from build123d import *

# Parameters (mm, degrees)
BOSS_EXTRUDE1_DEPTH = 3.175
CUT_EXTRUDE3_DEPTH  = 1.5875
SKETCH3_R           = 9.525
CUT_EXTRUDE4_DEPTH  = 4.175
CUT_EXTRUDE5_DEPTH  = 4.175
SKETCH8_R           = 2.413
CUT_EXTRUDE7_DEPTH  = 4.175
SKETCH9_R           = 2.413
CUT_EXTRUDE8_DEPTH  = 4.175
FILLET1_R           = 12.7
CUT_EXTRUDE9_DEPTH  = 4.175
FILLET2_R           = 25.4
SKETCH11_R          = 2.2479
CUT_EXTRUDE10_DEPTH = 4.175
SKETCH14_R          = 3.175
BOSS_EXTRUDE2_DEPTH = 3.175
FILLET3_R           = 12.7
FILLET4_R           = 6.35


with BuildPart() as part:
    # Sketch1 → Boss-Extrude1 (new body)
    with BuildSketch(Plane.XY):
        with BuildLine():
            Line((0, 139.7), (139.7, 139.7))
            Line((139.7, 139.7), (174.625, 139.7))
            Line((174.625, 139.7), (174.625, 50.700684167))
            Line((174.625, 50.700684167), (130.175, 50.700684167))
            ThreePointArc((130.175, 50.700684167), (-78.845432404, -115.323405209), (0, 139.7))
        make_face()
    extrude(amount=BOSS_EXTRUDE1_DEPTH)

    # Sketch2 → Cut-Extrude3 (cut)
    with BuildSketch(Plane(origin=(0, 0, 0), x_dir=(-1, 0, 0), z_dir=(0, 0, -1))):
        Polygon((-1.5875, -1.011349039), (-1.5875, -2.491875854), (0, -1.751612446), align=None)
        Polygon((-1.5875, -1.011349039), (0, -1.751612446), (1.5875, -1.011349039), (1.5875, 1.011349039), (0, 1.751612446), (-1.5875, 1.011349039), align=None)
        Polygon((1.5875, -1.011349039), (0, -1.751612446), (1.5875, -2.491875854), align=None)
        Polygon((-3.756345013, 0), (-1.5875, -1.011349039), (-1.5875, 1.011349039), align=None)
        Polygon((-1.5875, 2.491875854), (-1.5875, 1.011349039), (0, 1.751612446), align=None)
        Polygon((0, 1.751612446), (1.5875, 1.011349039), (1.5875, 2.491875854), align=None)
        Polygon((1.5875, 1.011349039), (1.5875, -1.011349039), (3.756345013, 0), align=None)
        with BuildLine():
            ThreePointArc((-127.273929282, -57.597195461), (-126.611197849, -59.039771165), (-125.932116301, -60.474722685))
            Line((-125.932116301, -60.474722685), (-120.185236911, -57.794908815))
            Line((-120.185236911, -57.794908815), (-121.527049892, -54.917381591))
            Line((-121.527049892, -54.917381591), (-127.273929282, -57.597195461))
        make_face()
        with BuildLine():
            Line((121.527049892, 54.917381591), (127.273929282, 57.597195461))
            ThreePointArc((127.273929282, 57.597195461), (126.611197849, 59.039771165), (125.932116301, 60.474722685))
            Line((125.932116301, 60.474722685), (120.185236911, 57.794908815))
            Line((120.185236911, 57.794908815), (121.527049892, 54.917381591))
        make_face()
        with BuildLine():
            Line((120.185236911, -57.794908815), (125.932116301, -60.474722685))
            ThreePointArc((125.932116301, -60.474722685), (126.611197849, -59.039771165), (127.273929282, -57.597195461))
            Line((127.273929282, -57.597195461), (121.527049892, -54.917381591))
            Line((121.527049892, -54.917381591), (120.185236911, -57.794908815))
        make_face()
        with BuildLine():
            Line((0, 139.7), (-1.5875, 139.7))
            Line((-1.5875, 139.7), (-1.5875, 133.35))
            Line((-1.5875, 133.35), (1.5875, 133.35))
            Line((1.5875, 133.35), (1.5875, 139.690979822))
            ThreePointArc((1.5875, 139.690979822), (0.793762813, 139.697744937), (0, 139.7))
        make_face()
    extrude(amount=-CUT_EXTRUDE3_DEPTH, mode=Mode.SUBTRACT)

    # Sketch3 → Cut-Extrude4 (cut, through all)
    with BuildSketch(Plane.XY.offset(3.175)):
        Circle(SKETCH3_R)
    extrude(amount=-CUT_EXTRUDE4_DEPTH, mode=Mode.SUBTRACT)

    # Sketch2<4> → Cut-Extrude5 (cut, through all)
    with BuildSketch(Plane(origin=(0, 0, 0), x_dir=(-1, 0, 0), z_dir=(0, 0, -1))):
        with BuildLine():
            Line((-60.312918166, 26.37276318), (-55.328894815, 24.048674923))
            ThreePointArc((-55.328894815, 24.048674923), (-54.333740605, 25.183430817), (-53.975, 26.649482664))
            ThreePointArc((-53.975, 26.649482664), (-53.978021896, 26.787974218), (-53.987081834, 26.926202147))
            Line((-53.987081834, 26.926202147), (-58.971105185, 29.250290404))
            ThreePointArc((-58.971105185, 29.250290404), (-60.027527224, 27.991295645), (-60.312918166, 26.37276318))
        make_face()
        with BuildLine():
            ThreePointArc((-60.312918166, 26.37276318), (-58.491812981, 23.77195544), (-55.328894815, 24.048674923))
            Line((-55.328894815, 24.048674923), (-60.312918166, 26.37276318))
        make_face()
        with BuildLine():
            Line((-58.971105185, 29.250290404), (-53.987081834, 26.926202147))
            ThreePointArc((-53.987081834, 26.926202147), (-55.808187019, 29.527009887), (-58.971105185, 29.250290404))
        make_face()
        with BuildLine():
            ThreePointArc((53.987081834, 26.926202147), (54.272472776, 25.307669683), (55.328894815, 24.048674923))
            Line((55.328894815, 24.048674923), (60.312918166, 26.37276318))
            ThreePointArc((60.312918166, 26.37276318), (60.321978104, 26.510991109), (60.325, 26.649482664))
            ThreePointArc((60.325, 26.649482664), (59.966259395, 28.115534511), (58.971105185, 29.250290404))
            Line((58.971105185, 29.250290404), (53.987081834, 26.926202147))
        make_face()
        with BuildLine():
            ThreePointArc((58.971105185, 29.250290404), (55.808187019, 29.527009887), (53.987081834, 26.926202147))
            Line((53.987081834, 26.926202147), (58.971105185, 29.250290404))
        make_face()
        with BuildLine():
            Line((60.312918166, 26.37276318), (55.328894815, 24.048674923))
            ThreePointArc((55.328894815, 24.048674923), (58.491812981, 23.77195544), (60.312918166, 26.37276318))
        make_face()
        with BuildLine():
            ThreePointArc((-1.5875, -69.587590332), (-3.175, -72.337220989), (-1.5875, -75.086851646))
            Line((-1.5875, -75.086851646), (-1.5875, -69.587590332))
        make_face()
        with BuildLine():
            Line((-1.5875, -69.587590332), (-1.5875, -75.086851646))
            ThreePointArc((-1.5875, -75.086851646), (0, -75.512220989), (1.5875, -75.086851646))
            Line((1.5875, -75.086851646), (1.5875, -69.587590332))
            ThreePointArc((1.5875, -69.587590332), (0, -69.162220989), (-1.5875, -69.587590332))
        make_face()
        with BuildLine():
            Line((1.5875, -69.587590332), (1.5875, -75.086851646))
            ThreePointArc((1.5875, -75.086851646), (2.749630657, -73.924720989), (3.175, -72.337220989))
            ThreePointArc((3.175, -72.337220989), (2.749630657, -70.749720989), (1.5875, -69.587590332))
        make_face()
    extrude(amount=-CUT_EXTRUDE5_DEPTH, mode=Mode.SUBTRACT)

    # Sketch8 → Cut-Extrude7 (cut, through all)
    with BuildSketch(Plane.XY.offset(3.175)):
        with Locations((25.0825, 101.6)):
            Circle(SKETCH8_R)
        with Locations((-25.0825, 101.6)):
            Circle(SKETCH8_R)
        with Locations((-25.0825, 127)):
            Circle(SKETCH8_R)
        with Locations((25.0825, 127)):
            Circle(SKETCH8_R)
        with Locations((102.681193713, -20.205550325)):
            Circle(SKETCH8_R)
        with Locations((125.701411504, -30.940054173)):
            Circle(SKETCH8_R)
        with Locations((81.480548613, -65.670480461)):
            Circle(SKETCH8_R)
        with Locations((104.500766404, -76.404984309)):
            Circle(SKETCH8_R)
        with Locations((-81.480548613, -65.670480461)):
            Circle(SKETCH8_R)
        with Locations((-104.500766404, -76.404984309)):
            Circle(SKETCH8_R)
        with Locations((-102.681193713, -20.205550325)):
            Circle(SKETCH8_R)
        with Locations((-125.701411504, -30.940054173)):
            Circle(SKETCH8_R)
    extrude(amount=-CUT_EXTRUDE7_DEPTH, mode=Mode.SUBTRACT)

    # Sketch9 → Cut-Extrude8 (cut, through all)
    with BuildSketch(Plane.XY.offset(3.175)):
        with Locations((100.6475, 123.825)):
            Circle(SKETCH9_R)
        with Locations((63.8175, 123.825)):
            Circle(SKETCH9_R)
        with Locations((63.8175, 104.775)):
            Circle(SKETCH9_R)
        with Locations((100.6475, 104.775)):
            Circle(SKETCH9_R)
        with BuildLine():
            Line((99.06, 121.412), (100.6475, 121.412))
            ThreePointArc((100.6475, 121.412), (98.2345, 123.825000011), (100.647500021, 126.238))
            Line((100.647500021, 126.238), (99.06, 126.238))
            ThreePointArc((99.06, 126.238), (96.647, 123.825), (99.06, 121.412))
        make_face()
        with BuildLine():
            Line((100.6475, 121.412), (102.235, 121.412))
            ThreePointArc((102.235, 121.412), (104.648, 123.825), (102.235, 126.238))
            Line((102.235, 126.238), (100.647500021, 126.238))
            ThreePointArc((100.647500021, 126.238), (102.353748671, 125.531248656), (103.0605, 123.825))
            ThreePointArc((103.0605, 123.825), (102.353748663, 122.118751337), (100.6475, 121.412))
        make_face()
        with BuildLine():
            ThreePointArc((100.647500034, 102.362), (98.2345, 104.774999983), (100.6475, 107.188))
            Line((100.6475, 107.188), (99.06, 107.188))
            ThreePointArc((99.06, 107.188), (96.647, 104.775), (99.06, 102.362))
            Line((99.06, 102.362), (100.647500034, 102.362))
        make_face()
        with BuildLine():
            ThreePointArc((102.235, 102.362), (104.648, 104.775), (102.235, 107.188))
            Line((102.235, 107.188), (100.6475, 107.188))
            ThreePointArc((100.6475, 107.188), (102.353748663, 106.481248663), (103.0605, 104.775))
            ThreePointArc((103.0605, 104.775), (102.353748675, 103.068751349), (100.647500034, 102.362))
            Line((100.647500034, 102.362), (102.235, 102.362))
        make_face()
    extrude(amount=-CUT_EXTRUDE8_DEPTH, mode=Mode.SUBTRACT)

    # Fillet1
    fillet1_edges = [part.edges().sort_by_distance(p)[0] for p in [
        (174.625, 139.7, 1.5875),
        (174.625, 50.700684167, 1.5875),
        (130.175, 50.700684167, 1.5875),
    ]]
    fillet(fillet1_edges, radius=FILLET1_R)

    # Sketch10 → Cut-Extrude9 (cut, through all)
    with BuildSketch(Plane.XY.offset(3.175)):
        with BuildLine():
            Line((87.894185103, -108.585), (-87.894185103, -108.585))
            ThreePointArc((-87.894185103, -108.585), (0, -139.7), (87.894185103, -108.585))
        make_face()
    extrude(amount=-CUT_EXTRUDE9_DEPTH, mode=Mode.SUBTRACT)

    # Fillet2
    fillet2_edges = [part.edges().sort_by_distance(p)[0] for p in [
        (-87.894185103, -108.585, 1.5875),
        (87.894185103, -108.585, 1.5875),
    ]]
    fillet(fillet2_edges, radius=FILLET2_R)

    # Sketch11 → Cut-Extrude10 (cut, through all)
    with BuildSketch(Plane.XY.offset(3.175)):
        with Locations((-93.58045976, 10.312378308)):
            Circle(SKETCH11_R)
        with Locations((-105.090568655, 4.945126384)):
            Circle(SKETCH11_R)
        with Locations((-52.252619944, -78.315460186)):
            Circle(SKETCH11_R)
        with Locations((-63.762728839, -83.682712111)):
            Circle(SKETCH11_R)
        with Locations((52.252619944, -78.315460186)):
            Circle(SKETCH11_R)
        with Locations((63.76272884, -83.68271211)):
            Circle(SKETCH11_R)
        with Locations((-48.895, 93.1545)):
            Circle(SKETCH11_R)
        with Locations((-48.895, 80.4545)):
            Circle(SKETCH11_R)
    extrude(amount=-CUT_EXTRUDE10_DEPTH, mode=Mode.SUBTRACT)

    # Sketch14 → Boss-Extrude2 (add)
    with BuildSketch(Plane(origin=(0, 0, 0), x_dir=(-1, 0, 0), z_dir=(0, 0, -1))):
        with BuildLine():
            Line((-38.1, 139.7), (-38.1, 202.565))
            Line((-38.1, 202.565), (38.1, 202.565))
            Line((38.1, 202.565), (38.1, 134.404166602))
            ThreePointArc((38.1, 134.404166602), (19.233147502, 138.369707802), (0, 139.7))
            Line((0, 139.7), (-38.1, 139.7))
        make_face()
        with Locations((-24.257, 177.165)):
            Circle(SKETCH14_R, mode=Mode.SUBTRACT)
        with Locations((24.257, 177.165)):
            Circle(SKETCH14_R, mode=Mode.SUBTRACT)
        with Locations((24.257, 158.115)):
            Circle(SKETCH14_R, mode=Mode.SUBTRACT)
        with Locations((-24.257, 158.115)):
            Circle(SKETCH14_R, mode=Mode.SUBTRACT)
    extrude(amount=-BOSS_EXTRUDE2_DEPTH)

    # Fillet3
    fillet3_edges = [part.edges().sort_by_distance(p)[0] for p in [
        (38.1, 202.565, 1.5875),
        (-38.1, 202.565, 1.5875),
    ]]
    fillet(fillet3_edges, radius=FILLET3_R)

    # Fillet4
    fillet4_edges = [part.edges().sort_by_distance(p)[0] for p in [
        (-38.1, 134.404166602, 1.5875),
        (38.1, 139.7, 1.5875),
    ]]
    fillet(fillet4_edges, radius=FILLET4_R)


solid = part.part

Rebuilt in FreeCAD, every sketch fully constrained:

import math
import FreeCAD as App
import Part
import Sketcher
Q = App.Units.Quantity


def edges_at(feature, points):
    """Names of the edges that pass closest to the given points."""
    edges = feature.Shape.Edges
    near = lambda p: min(range(len(edges)), key=lambda i: edges[i].distToShape(Part.Vertex(*p))[0])
    return sorted({f"Edge{near(p) + 1}" for p in points})


def add_polygon(sketch, points):
    """Adds a closed chain of lines whose ends are joined by coincident constraints."""
    first, n = sketch.GeometryCount, len(points)
    for a, b in zip(points, points[1:] + points[:1]):
        sketch.addGeometry(Part.LineSegment(App.Vector(*a, 0), App.Vector(*b, 0)), False)
    for i in range(n):
        sketch.addConstraint(Sketcher.Constraint("Coincident", first + i, 2, first + (i + 1) % n, 1))

doc = App.newDocument("Part")
params = doc.addObject("Spreadsheet::Sheet", "Params")
for row, (alias, value) in enumerate([
    ("sketch1_radius", "5.5 in"),
    ("sketch1_width", "1.75 in"),
    ("sketch1_width2", "6.875 in"),
    ("pad1_length", "0.125 in"),
    ("sketch2_height", "0.25 in"),
    ("sketch2_width", "0.0625 in"),
    ("sketch2_length", "0.125 in"),
    ("pocket1_length", "0.0625 in"),
    ("sketch3_diameter", "0.75 in"),
    ("sketch4_radius", "0.125 in"),
    ("sketch5_diameter", "0.19 in"),
    ("sketch6_diameter", "0.19 in"),
    ("sketch6_width", "0.125 in"),
    ("fillet_radius", "0.5 in"),
    ("sketch7_radius", "5.5 in"),
    ("fillet2_radius", "1 in"),
    ("sketch8_diameter", "0.177 in"),
    ("sketch9_radius", "5.5 in"),
    ("sketch9_diameter", "0.25 in"),
    ("sketch9_width", "3 in"),
    ("sketch9_width2", "1.5 in"),
    ("sketch9_height", "2.475 in"),
    ("pad2_length", "0.125 in"),
    ("fillet3_radius", "0.5 in"),
    ("fillet4_radius", "0.25 in"),
], start=1):
    params.set(f"A{row}", alias)
    params.set(f"B{row}", "=" + value)
    params.setAlias(f"B{row}", alias)

body = doc.addObject("PartDesign::Body", "Body")

sketch1 = doc.addObject("Sketcher::SketchObject", "Sketch")
body.addObject(sketch1)
sketch1.AttachmentSupport = (doc.XY_Plane, [""])
sketch1.MapMode = "FlatFace"
sketch1.addGeometry([
    Part.LineSegment(App.Vector(175, 140, 0), App.Vector(0, 140, 0)),
    Part.ArcOfCircle(Part.Circle(App.Vector(0, 0, 0), App.Vector(0, 0, 1), 140), math.radians(90), math.radians(381)),
    Part.LineSegment(App.Vector(130, 51, 0), App.Vector(175, 51, 0)),
    Part.LineSegment(App.Vector(175, 51, 0), App.Vector(175, 140, 0)),
], False)
sketch1.addConstraint([
    Sketcher.Constraint("Tangent", 0, 2, 1, 1),
    Sketcher.Constraint("Coincident", 1, 2, 2, 1),
    Sketcher.Constraint("Coincident", 2, 2, 3, 1),
    Sketcher.Constraint("Coincident", 3, 2, 0, 1),
    Sketcher.Constraint("Horizontal", 0),
    Sketcher.Constraint("Horizontal", 2),
    Sketcher.Constraint("Vertical", 3),
    Sketcher.Constraint("Coincident", 1, 3, -1, 1),
    Sketcher.Constraint("Radius", 1, Q("5.5 in")),
    Sketcher.Constraint("DistanceX", 2, 1, 2, 2, Q("1.75 in")),
    Sketcher.Constraint("DistanceX", 0, 2, 0, 1, Q("6.875 in")),
])
sketch1.setExpression("Constraints[8]", "Params.sketch1_radius")
sketch1.setExpression("Constraints[9]", "Params.sketch1_width")
sketch1.setExpression("Constraints[10]", "Params.sketch1_width2")
pad1 = doc.addObject("PartDesign::Pad", "Pad")
body.addObject(pad1)
pad1.Profile = sketch1
pad1.setExpression("Length", "Params.pad1_length")

sketch2 = doc.addObject("Sketcher::SketchObject", "Sketch001")
body.addObject(sketch2)
sketch2.AttachmentSupport = (doc.XY_Plane, [""])
sketch2.MapMode = "FlatFace"
add_polygon(sketch2, [(1.6, -2.5), (0, -1.8), (-1.6, -2.5), (-1.6, -1), (-3.8, 0), (-1.6, 1), (-1.6, 2.5), (0, 1.8), (1.6, 2.5), (1.6, 1), (3.8, 0), (1.6, -1)])
sketch2.addGeometry(Part.ArcOfCircle(Part.Circle(App.Vector(0, 0, 0), App.Vector(0, 0, 1), 139.7), math.radians(-25.65), math.radians(-24.35)), False)
sketch2.addGeometry(Part.LineSegment(App.Vector(125.9, -60.5, 0), App.Vector(120.2, -57.8, 0)), False)
sketch2.addGeometry(Part.LineSegment(App.Vector(120.2, -57.8, 0), App.Vector(121.5, -54.9, 0)), False)
sketch2.addGeometry(Part.LineSegment(App.Vector(121.5, -54.9, 0), App.Vector(127.3, -57.6, 0)), False)
sketch2.addGeometry(Part.LineSegment(App.Vector(-121.5, 54.9, 0), App.Vector(-127.3, 57.6, 0)), False)
sketch2.addGeometry(Part.ArcOfCircle(Part.Circle(App.Vector(0, 0, 0), App.Vector(0, 0, 1), 139.7), math.radians(154.35), math.radians(155.65)), False)
sketch2.addGeometry(Part.LineSegment(App.Vector(-125.9, 60.5, 0), App.Vector(-120.2, 57.8, 0)), False)
sketch2.addGeometry(Part.LineSegment(App.Vector(-120.2, 57.8, 0), App.Vector(-121.5, 54.9, 0)), False)
sketch2.addGeometry(Part.LineSegment(App.Vector(-120.2, -57.8, 0), App.Vector(-125.9, -60.5, 0)), False)
sketch2.addGeometry(Part.ArcOfCircle(Part.Circle(App.Vector(0, 0, 0), App.Vector(0, 0, 1), 139.7), math.radians(-155.65), math.radians(-154.35)), False)
sketch2.addGeometry(Part.LineSegment(App.Vector(-127.3, -57.6, 0), App.Vector(-121.5, -54.9, 0)), False)
sketch2.addGeometry(Part.LineSegment(App.Vector(-121.5, -54.9, 0), App.Vector(-120.2, -57.8, 0)), False)
sketch2.addGeometry(Part.LineSegment(App.Vector(0, 139.7, 0), App.Vector(1.6, 139.7, 0)), False)
sketch2.addGeometry(Part.LineSegment(App.Vector(1.6, 139.7, 0), App.Vector(1.6, 133.3, 0)), False)
sketch2.addGeometry(Part.LineSegment(App.Vector(1.6, 133.3, 0), App.Vector(-1.6, 133.3, 0)), False)
sketch2.addGeometry(Part.LineSegment(App.Vector(-1.6, 133.3, 0), App.Vector(-1.6, 139.7, 0)), False)
sketch2.addGeometry(Part.ArcOfCircle(Part.Circle(App.Vector(0, 0, 0), App.Vector(0, 0, 1), 139.7), math.radians(90), math.radians(90.65)), False)
sketch2.addConstraint([
    Sketcher.Constraint("Coincident", 12, 1, 13, 1),
    Sketcher.Constraint("Coincident", 13, 2, 14, 1),
    Sketcher.Constraint("Coincident", 14, 2, 15, 1),
    Sketcher.Constraint("Coincident", 15, 2, 12, 2),
    Sketcher.Constraint("Coincident", 16, 2, 17, 2),
    Sketcher.Constraint("Coincident", 17, 1, 18, 1),
    Sketcher.Constraint("Coincident", 18, 2, 19, 1),
    Sketcher.Constraint("Coincident", 19, 2, 16, 1),
    Sketcher.Constraint("Coincident", 20, 2, 21, 2),
    Sketcher.Constraint("Coincident", 21, 1, 22, 1),
    Sketcher.Constraint("Coincident", 22, 2, 23, 1),
    Sketcher.Constraint("Coincident", 23, 2, 20, 1),
    Sketcher.Constraint("Coincident", 24, 2, 25, 1),
    Sketcher.Constraint("Coincident", 25, 2, 26, 1),
    Sketcher.Constraint("Coincident", 26, 2, 27, 1),
    Sketcher.Constraint("Coincident", 27, 2, 28, 2),
    Sketcher.Constraint("Tangent", 28, 1, 24, 1),
    Sketcher.Constraint("Vertical", 2),
    Sketcher.Constraint("Vertical", 5),
    Sketcher.Constraint("Vertical", 8),
    Sketcher.Constraint("Vertical", 11),
    Sketcher.Constraint("Horizontal", 24),
    Sketcher.Constraint("Vertical", 25),
    Sketcher.Constraint("Horizontal", 26),
    Sketcher.Constraint("Vertical", 27),
    Sketcher.Constraint("Coincident", 12, 3, -1, 1),
    Sketcher.Constraint("Coincident", 17, 3, -1, 1),
    Sketcher.Constraint("Coincident", 21, 3, -1, 1),
    Sketcher.Constraint("Equal", 12, 17),
    Sketcher.Constraint("Equal", 17, 21),
    Sketcher.Constraint("Symmetric", 0, 2, 6, 2, -1, 1),
    Sketcher.Constraint("Symmetric", 1, 2, 7, 2, -1, 1),
    Sketcher.Constraint("Symmetric", 3, 2, 9, 2, -1, 1),
    Sketcher.Constraint("Symmetric", 4, 2, 10, 2, -1, 1),
    Sketcher.Constraint("Symmetric", 13, 2, 18, 2, -1, 1),
    Sketcher.Constraint("Symmetric", 14, 2, 19, 2, -1, 1),
    Sketcher.Constraint("Symmetric", 5, 2, 7, 2, -2),
    Sketcher.Constraint("Symmetric", 14, 2, 22, 2, -2),
    Sketcher.Constraint("Symmetric", 13, 2, 23, 2, -2),
    Sketcher.Constraint("PointOnObject", 28, 3, -2),
    Sketcher.Constraint("PointOnObject", 0, 2, -2),
    Sketcher.Constraint("PointOnObject", 3, 2, -1),
    Sketcher.Constraint("Parallel", 0, 3),
    Sketcher.Constraint("Parallel", 1, 4),
    Sketcher.Constraint("Parallel", 3, 6),
    Sketcher.Constraint("Parallel", 6, 9),
    Sketcher.Constraint("Parallel", 9, 13),
    Sketcher.Constraint("Perpendicular", 13, 14),
    Sketcher.Constraint("Perpendicular", 14, 15),
    Sketcher.Constraint("Parallel", 15, 16),
    Sketcher.Constraint("Parallel", 16, 18),
    Sketcher.Constraint("Parallel", 10, 20),
    Sketcher.Constraint("Parallel", 20, 22),
    Sketcher.Constraint("Vertical", 11, 2, 24, 2),
    Sketcher.Constraint("Vertical", 5, 2, 26, 2),
    Sketcher.Constraint("Equal", 13, 15),
    Sketcher.Constraint("Angle", 0, Q("155 deg")),
    Sketcher.Constraint("DistanceY", 25, 2, 25, 1, Q("0.25 in")),
    Sketcher.Constraint("DistanceY", -1, 1, 24, 2, Q("5.5 in")),
    Sketcher.Constraint("DistanceX", 24, 1, 24, 2, Q("0.0625 in")),
    Sketcher.Constraint("Distance", 14, Q("0.125 in")),
    Sketcher.Constraint("Radius", 28, 139.700012),
    Sketcher.Constraint("Radius", 12, 139.699994),
    Sketcher.Constraint("DistanceY", 0, 2, 28, 3, 1.751601),
    Sketcher.Constraint("DistanceY", 2, 2, 4, 2, 2.022698),
    Sketcher.Constraint("Distance", 13, 6.34098),
])
sketch2.setExpression("Constraints[69]", "Params.sketch2_height")
sketch2.setExpression("Constraints[71]", "Params.sketch2_width")
sketch2.setExpression("Constraints[72]", "Params.sketch2_length")
pocket1 = doc.addObject("PartDesign::Pocket", "Pocket")
body.addObject(pocket1)
pocket1.Profile = sketch2
pocket1.setExpression("Length", "Params.pocket1_length")
pocket1.Reversed = True

sketch3 = doc.addObject("Sketcher::SketchObject", "Sketch002")
body.addObject(sketch3)
sketch3.AttachmentSupport = (doc.XY_Plane, [""])
sketch3.MapMode = "FlatFace"
sketch3.AttachmentOffset = App.Placement(App.Vector(0, 0, 0.125 * 25.4), App.Rotation())
sketch3.addGeometry(Part.Circle(App.Vector(0, 0, 0), App.Vector(0, 0, 1), 10), False)
sketch3.addConstraint([
    Sketcher.Constraint("Coincident", 0, 3, -1, 1),
    Sketcher.Constraint("Diameter", 0, Q("0.75 in")),
])
sketch3.setExpression("Constraints[1]", "Params.sketch3_diameter")
pocket2 = doc.addObject("PartDesign::Pocket", "Pocket001")
body.addObject(pocket2)
pocket2.Profile = sketch3
pocket2.Type = "ThroughAll"

sketch4 = doc.addObject("Sketcher::SketchObject", "Sketch003")
body.addObject(sketch4)
sketch4.AttachmentSupport = (doc.XY_Plane, [""])
sketch4.MapMode = "FlatFace"
sketch4.addGeometry([
    Part.ArcOfCircle(Part.Circle(App.Vector(57.15, 26.65, 0), App.Vector(0, 0, 1), 3.18), math.radians(-180), math.radians(-125)),
    Part.ArcOfCircle(Part.Circle(App.Vector(57.15, 26.65, 0), App.Vector(0, 0, 1), 3.17), math.radians(175), math.radians(180)),
    Part.ArcOfCircle(Part.Circle(App.Vector(57.15, 26.65, 0), App.Vector(0, 0, 1), 3.17), math.radians(55), math.radians(175)),
    Part.ArcOfCircle(Part.Circle(App.Vector(57.15, 26.65, 0), App.Vector(0, 0, 1), 3.17), math.radians(-5), math.radians(55)),
    Part.ArcOfCircle(Part.Circle(App.Vector(57.15, 26.65, 0), App.Vector(0, 0, 1), 3.17), math.radians(-125), math.radians(-5)),
    Part.ArcOfCircle(Part.Circle(App.Vector(-57.15, 26.65, 0), App.Vector(0, 0, 1), 3.17), math.radians(-55), math.radians(5)),
    Part.ArcOfCircle(Part.Circle(App.Vector(-57.15, 26.65, 0), App.Vector(0, 0, 1), 3.17), math.radians(-175), math.radians(-55)),
    Part.ArcOfCircle(Part.Circle(App.Vector(-57.15, 26.65, 0), App.Vector(0, 0, 1), 3.17), math.radians(180), math.radians(185)),
    Part.ArcOfCircle(Part.Circle(App.Vector(-57.15, 26.65, 0), App.Vector(0, 0, 1), 3.17), math.radians(125), math.radians(180)),
    Part.ArcOfCircle(Part.Circle(App.Vector(-57.15, 26.65, 0), App.Vector(0, 0, 1), 3.17), math.radians(5), math.radians(125)),
    Part.ArcOfCircle(Part.Circle(App.Vector(0, -72.34, 0), App.Vector(0, 0, 1), 3.17), math.radians(-60), math.radians(60)),
    Part.ArcOfCircle(Part.Circle(App.Vector(0, -72.34, 0), App.Vector(0, 0, 1), 3.17), math.radians(-120), math.radians(-60)),
    Part.ArcOfCircle(Part.Circle(App.Vector(0, -72.34, 0), App.Vector(0, 0, 1), 3.17), math.radians(180), math.radians(240)),
    Part.ArcOfCircle(Part.Circle(App.Vector(0, -72.34, 0), App.Vector(0, 0, 1), 3.17), math.radians(120), math.radians(180)),
    Part.ArcOfCircle(Part.Circle(App.Vector(0, -72.34, 0), App.Vector(0, 0, 1), 3.17), math.radians(60), math.radians(120)),
], False)
sketch4.addConstraint([
    Sketcher.Constraint("Tangent", 0, 1, 1, 2),
    Sketcher.Constraint("Tangent", 1, 1, 2, 2),
    Sketcher.Constraint("Tangent", 2, 1, 3, 2),
    Sketcher.Constraint("Tangent", 3, 1, 4, 2),
    Sketcher.Constraint("Tangent", 4, 1, 0, 2),
    Sketcher.Constraint("Tangent", 5, 1, 6, 2),
    Sketcher.Constraint("Tangent", 6, 1, 7, 2),
    Sketcher.Constraint("Tangent", 7, 1, 8, 2),
    Sketcher.Constraint("Tangent", 8, 1, 9, 2),
    Sketcher.Constraint("Tangent", 9, 1, 5, 2),
    Sketcher.Constraint("Tangent", 10, 1, 11, 2),
    Sketcher.Constraint("Tangent", 11, 1, 12, 2),
    Sketcher.Constraint("Tangent", 12, 1, 13, 2),
    Sketcher.Constraint("Tangent", 13, 1, 14, 2),
    Sketcher.Constraint("Tangent", 14, 1, 10, 2),
    Sketcher.Constraint("Coincident", 2, 3, 0, 3),
    Sketcher.Constraint("Coincident", 7, 3, 5, 3),
    Sketcher.Constraint("Coincident", 12, 3, 10, 3),
    Sketcher.Constraint("Equal", 4, 5),
    Sketcher.Constraint("Equal", 9, 10),
    Sketcher.Constraint("Symmetric", 0, 3, 5, 3, -2),
    Sketcher.Constraint("Symmetric", 10, 1, 11, 1, -2),
    Sketcher.Constraint("Horizontal", 9, 3, 0, 1),
    Sketcher.Constraint("Horizontal", 4, 1, 5, 1),
    Sketcher.Constraint("Horizontal", 3, 1, 6, 1),
    Sketcher.Constraint("Horizontal", 0, 1, 7, 1),
    Sketcher.Constraint("Horizontal", 2, 1, 8, 1),
    Sketcher.Constraint("Horizontal", 1, 1, 9, 1),
    Sketcher.Constraint("Horizontal", 14, 3, 12, 1),
    Sketcher.Constraint("Horizontal", 13, 1, 14, 1),
    Sketcher.Constraint("Vertical", 11, 1, 13, 1),
    Sketcher.Constraint("Radius", 0, Q("0.125 in")),
    Sketcher.Constraint("DistanceX", 5, 3, 1, 3, Q("4.5 in")),
    Sketcher.Constraint("DistanceX", -1, 1, 10, 1, Q("0.0625 in")),
    Sketcher.Constraint("DistanceY", 10, 3, -1, 1, 72.337221),
    Sketcher.Constraint("DistanceX", -1, 1, 1, 1, 53.987082),
    Sketcher.Constraint("DistanceY", -1, 1, 2, 1, 29.25029),
    Sketcher.Constraint("DistanceX", -1, 1, 3, 1, 60.312918),
    Sketcher.Constraint("DistanceY", -1, 1, 0, 3, 26.649483),
    Sketcher.Constraint("DistanceX", -1, 1, 4, 1, 55.328895),
])
sketch4.setExpression("Constraints[31]", "Params.sketch4_radius")
pocket3 = doc.addObject("PartDesign::Pocket", "Pocket002")
body.addObject(pocket3)
pocket3.Profile = sketch4
pocket3.Type = "ThroughAll"
pocket3.Reversed = True

sketch5 = doc.addObject("Sketcher::SketchObject", "Sketch004")
body.addObject(sketch5)
sketch5.AttachmentSupport = (doc.XY_Plane, [""])
sketch5.MapMode = "FlatFace"
sketch5.AttachmentOffset = App.Placement(App.Vector(0, 0, 0.125 * 25.4), App.Rotation())
sketch5.addGeometry([
    Part.Circle(App.Vector(25.1, 101.6, 0), App.Vector(0, 0, 1), 2.4),
    Part.Circle(App.Vector(-25.1, 101.6, 0), App.Vector(0, 0, 1), 2.4),
    Part.Circle(App.Vector(-25.1, 127, 0), App.Vector(0, 0, 1), 2.4),
    Part.Circle(App.Vector(25.1, 127, 0), App.Vector(0, 0, 1), 2.4),
    Part.Circle(App.Vector(102.7, -20.2, 0), App.Vector(0, 0, 1), 2.4),
    Part.Circle(App.Vector(125.7, -30.9, 0), App.Vector(0, 0, 1), 2.4),
    Part.Circle(App.Vector(81.5, -65.7, 0), App.Vector(0, 0, 1), 2.4),
    Part.Circle(App.Vector(104.5, -76.4, 0), App.Vector(0, 0, 1), 2.4),
    Part.Circle(App.Vector(-81.5, -65.7, 0), App.Vector(0, 0, 1), 2.4),
    Part.Circle(App.Vector(-104.5, -76.4, 0), App.Vector(0, 0, 1), 2.4),
    Part.Circle(App.Vector(-102.7, -20.2, 0), App.Vector(0, 0, 1), 2.4),
    Part.Circle(App.Vector(-125.7, -30.9, 0), App.Vector(0, 0, 1), 2.4),
], False)
sketch5.addConstraint([
    Sketcher.Constraint("Equal", 0, 1),
    Sketcher.Constraint("Equal", 1, 2),
    Sketcher.Constraint("Equal", 2, 3),
    Sketcher.Constraint("Equal", 3, 4),
    Sketcher.Constraint("Equal", 4, 5),
    Sketcher.Constraint("Equal", 5, 6),
    Sketcher.Constraint("Equal", 6, 7),
    Sketcher.Constraint("Equal", 7, 8),
    Sketcher.Constraint("Equal", 8, 9),
    Sketcher.Constraint("Equal", 9, 10),
    Sketcher.Constraint("Equal", 10, 11),
    Sketcher.Constraint("Symmetric", 0, 3, 1, 3, -2),
    Sketcher.Constraint("Symmetric", 2, 3, 3, 3, -2),
    Sketcher.Constraint("Symmetric", 6, 3, 8, 3, -2),
    Sketcher.Constraint("Symmetric", 7, 3, 9, 3, -2),
    Sketcher.Constraint("Symmetric", 4, 3, 10, 3, -2),
    Sketcher.Constraint("Symmetric", 5, 3, 11, 3, -2),
    Sketcher.Constraint("Vertical", 1, 3, 2, 3),
    Sketcher.Constraint("Diameter", 0, Q("0.19 in")),
    Sketcher.Constraint("DistanceY", -1, 1, 0, 3, Q("4 in")),
    Sketcher.Constraint("DistanceY", -1, 1, 2, 3, Q("5 in")),
    Sketcher.Constraint("DistanceX", 1, 3, 0, 3, Q("1.975 in")),
    Sketcher.Constraint("DistanceY", 4, 3, -1, 1, 20.20555),
    Sketcher.Constraint("DistanceX", -1, 1, 5, 3, 125.701412),
    Sketcher.Constraint("DistanceX", -1, 1, 6, 3, 81.480549),
    Sketcher.Constraint("DistanceY", 6, 3, -1, 1, 65.67048),
    Sketcher.Constraint("DistanceY", 7, 3, 5, 3, 45.46493),
    Sketcher.Constraint("DistanceX", 9, 3, 4, 3, 207.18196),
    Sketcher.Constraint("DistanceX", -1, 1, 4, 3, 102.681194),
    Sketcher.Constraint("DistanceY", 5, 3, -1, 1, 30.940054),
])
sketch5.setExpression("Constraints[18]", "Params.sketch5_diameter")
pocket4 = doc.addObject("PartDesign::Pocket", "Pocket003")
body.addObject(pocket4)
pocket4.Profile = sketch5
pocket4.Type = "ThroughAll"

sketch6 = doc.addObject("Sketcher::SketchObject", "Sketch005")
body.addObject(sketch6)
sketch6.AttachmentSupport = (doc.XY_Plane, [""])
sketch6.MapMode = "FlatFace"
sketch6.AttachmentOffset = App.Placement(App.Vector(0, 0, 0.125 * 25.4), App.Rotation())
sketch6.addGeometry([
    Part.ArcOfCircle(Part.Circle(App.Vector(99.1, 123.8, 0), App.Vector(0, 0, 1), 2.4), math.radians(90), math.radians(270)),
    Part.LineSegment(App.Vector(99.1, 121.4, 0), App.Vector(102.2, 121.4, 0)),
    Part.ArcOfCircle(Part.Circle(App.Vector(102.2, 123.8, 0), App.Vector(0, 0, 1), 2.4), math.radians(-90), math.radians(90)),
    Part.LineSegment(App.Vector(102.2, 126.2, 0), App.Vector(99.1, 126.2, 0)),
    Part.Circle(App.Vector(63.8, 123.8, 0), App.Vector(0, 0, 1), 2.4),
    Part.Circle(App.Vector(63.8, 104.8, 0), App.Vector(0, 0, 1), 2.4),
    Part.ArcOfCircle(Part.Circle(App.Vector(99.1, 104.8, 0), App.Vector(0, 0, 1), 2.4), math.radians(90), math.radians(270)),
    Part.LineSegment(App.Vector(99.1, 102.4, 0), App.Vector(102.2, 102.4, 0)),
    Part.ArcOfCircle(Part.Circle(App.Vector(102.2, 104.8, 0), App.Vector(0, 0, 1), 2.4), math.radians(-90), math.radians(90)),
    Part.LineSegment(App.Vector(102.2, 107.2, 0), App.Vector(99.1, 107.2, 0)),
], False)
sketch6.addConstraint([
    Sketcher.Constraint("Tangent", 0, 2, 1, 1),
    Sketcher.Constraint("Tangent", 1, 2, 2, 1),
    Sketcher.Constraint("Tangent", 2, 2, 3, 1),
    Sketcher.Constraint("Tangent", 3, 2, 0, 1),
    Sketcher.Constraint("Tangent", 6, 2, 7, 1),
    Sketcher.Constraint("Tangent", 7, 2, 8, 1),
    Sketcher.Constraint("Tangent", 8, 2, 9, 1),
    Sketcher.Constraint("Tangent", 9, 2, 6, 1),
    Sketcher.Constraint("Horizontal", 1),
    Sketcher.Constraint("Horizontal", 3),
    Sketcher.Constraint("Horizontal", 7),
    Sketcher.Constraint("Horizontal", 9),
    Sketcher.Constraint("Equal", 2, 4),
    Sketcher.Constraint("Equal", 4, 5),
    Sketcher.Constraint("Equal", 5, 6),
    Sketcher.Constraint("Horizontal", 2, 3, 4, 3),
    Sketcher.Constraint("Horizontal", 5, 3, 6, 3),
    Sketcher.Constraint("Vertical", 4, 3, 5, 3),
    Sketcher.Constraint("Vertical", 0, 3, 6, 3),
    Sketcher.Constraint("Vertical", 2, 3, 8, 3),
    Sketcher.Constraint("Diameter", 4, Q("0.19 in")),
    Sketcher.Constraint("DistanceX", -1, 1, 0, 3, Q("3.9 in")),
    Sketcher.Constraint("DistanceX", 1, 1, 1, 2, Q("0.125 in")),
    Sketcher.Constraint("DistanceY", -1, 1, 0, 2, Q("4.78 in")),
    Sketcher.Constraint("DistanceY", -1, 1, 6, 2, Q("4.03 in")),
    Sketcher.Constraint("DistanceX", -1, 1, 4, 3, Q("2.5125 in")),
])
sketch6.setExpression("Constraints[20]", "Params.sketch6_diameter")
sketch6.setExpression("Constraints[22]", "Params.sketch6_width")
pocket5 = doc.addObject("PartDesign::Pocket", "Pocket004")
body.addObject(pocket5)
pocket5.Profile = sketch6
pocket5.Type = "ThroughAll"
doc.recompute()

fillet = doc.addObject("PartDesign::Fillet", "Fillet")
body.addObject(fillet)
fillet.Base = (pocket5, edges_at(pocket5, [(174.625, 139.7, 1.587), (174.625, 50.701, 1.587), (130.175, 50.701, 1.587)]))
fillet.setExpression("Radius", "Params.fillet_radius")

sketch7 = doc.addObject("Sketcher::SketchObject", "Sketch006")
body.addObject(sketch7)
sketch7.AttachmentSupport = (doc.XY_Plane, [""])
sketch7.MapMode = "FlatFace"
sketch7.AttachmentOffset = App.Placement(App.Vector(0, 0, 0.125 * 25.4), App.Rotation())
sketch7.addGeometry([
    Part.LineSegment(App.Vector(88, -109, 0), App.Vector(-88, -109, 0)),
    Part.ArcOfCircle(Part.Circle(App.Vector(0, 0, 0), App.Vector(0, 0, 1), 140), math.radians(-129), math.radians(-51)),
], False)
sketch7.addConstraint([
    Sketcher.Constraint("Coincident", 0, 1, 1, 2),
    Sketcher.Constraint("Coincident", 1, 1, 0, 2),
    Sketcher.Constraint("Horizontal", 0),
    Sketcher.Constraint("Coincident", 1, 3, -1, 1),
    Sketcher.Constraint("Radius", 1, Q("5.5 in")),
    Sketcher.Constraint("DistanceY", 0, 1, -1, 1, Q("4.275 in")),
])
sketch7.setExpression("Constraints[4]", "Params.sketch7_radius")
pocket6 = doc.addObject("PartDesign::Pocket", "Pocket005")
body.addObject(pocket6)
pocket6.Profile = sketch7
pocket6.Type = "ThroughAll"
doc.recompute()

fillet2 = doc.addObject("PartDesign::Fillet", "Fillet001")
body.addObject(fillet2)
fillet2.Base = (pocket6, edges_at(pocket6, [(-87.894, -108.585, 1.587), (87.894, -108.585, 1.587)]))
fillet2.setExpression("Radius", "Params.fillet2_radius")

sketch8 = doc.addObject("Sketcher::SketchObject", "Sketch007")
body.addObject(sketch8)
sketch8.AttachmentSupport = (doc.XY_Plane, [""])
sketch8.MapMode = "FlatFace"
sketch8.AttachmentOffset = App.Placement(App.Vector(0, 0, 0.125 * 25.4), App.Rotation())
sketch8.addGeometry([
    Part.Circle(App.Vector(-93.6, 10.3, 0), App.Vector(0, 0, 1), 2.2),
    Part.Circle(App.Vector(-105.1, 4.9, 0), App.Vector(0, 0, 1), 2.2),
    Part.Circle(App.Vector(-52.3, -78.3, 0), App.Vector(0, 0, 1), 2.2),
    Part.Circle(App.Vector(-63.8, -83.7, 0), App.Vector(0, 0, 1), 2.2),
    Part.Circle(App.Vector(52.3, -78.3, 0), App.Vector(0, 0, 1), 2.2),
    Part.Circle(App.Vector(63.8, -83.7, 0), App.Vector(0, 0, 1), 2.2),
    Part.Circle(App.Vector(-48.9, 93.2, 0), App.Vector(0, 0, 1), 2.2),
    Part.Circle(App.Vector(-48.9, 80.5, 0), App.Vector(0, 0, 1), 2.2),
], False)
sketch8.addConstraint([
    Sketcher.Constraint("Equal", 0, 1),
    Sketcher.Constraint("Equal", 1, 2),
    Sketcher.Constraint("Equal", 2, 3),
    Sketcher.Constraint("Equal", 3, 4),
    Sketcher.Constraint("Equal", 4, 5),
    Sketcher.Constraint("Equal", 5, 6),
    Sketcher.Constraint("Equal", 6, 7),
    Sketcher.Constraint("Symmetric", 2, 3, 4, 3, -2),
    Sketcher.Constraint("Symmetric", 3, 3, 5, 3, -2),
    Sketcher.Constraint("Vertical", 6, 3, 7, 3),
    Sketcher.Constraint("Diameter", 0, Q("0.177 in")),
    Sketcher.Constraint("DistanceY", 7, 3, 6, 3, Q("0.5 in")),
    Sketcher.Constraint("DistanceX", 6, 3, -1, 1, Q("1.925 in")),
    Sketcher.Constraint("DistanceY", -1, 1, 6, 3, Q("3.6675 in")),
    Sketcher.Constraint("DistanceX", 0, 3, -1, 1, 93.58046),
    Sketcher.Constraint("DistanceY", -1, 1, 0, 3, 10.312378),
    Sketcher.Constraint("DistanceX", 1, 3, -1, 1, 105.090569),
    Sketcher.Constraint("DistanceX", 2, 3, -1, 1, 52.25262),
    Sketcher.Constraint("DistanceY", 2, 3, -1, 1, 78.31546),
    Sketcher.Constraint("DistanceX", 3, 3, -1, 1, 63.762729),
    Sketcher.Constraint("DistanceY", 1, 3, 0, 3, 5.367252),
    Sketcher.Constraint("DistanceY", 3, 3, 2, 3, 5.367252),
])
sketch8.setExpression("Constraints[10]", "Params.sketch8_diameter")
pocket7 = doc.addObject("PartDesign::Pocket", "Pocket006")
body.addObject(pocket7)
pocket7.Profile = sketch8
pocket7.Type = "ThroughAll"

sketch9 = doc.addObject("Sketcher::SketchObject", "Sketch008")
body.addObject(sketch9)
sketch9.AttachmentSupport = (doc.XY_Plane, [""])
sketch9.MapMode = "FlatFace"
sketch9.addGeometry([
    Part.LineSegment(App.Vector(38.1, 202.6, 0), App.Vector(38.1, 139.7, 0)),
    Part.LineSegment(App.Vector(38.1, 139.7, 0), App.Vector(0, 139.7, 0)),
    Part.ArcOfCircle(Part.Circle(App.Vector(0, 0, 0), App.Vector(0, 0, 1), 139.7), math.radians(90), math.radians(105.83)),
    Part.LineSegment(App.Vector(-38.1, 134.4, 0), App.Vector(-38.1, 202.6, 0)),
    Part.LineSegment(App.Vector(-38.1, 202.6, 0), App.Vector(38.1, 202.6, 0)),
    Part.Circle(App.Vector(-24.3, 158.1, 0), App.Vector(0, 0, 1), 3.2),
    Part.Circle(App.Vector(24.3, 158.1, 0), App.Vector(0, 0, 1), 3.2),
    Part.Circle(App.Vector(-24.3, 177.2, 0), App.Vector(0, 0, 1), 3.2),
    Part.Circle(App.Vector(24.3, 177.2, 0), App.Vector(0, 0, 1), 3.2),
], False)
sketch9.addConstraint([
    Sketcher.Constraint("Coincident", 0, 2, 1, 1),
    Sketcher.Constraint("Tangent", 1, 2, 2, 1),
    Sketcher.Constraint("Coincident", 2, 2, 3, 1),
    Sketcher.Constraint("Coincident", 3, 2, 4, 1),
    Sketcher.Constraint("Coincident", 4, 2, 0, 1),
    Sketcher.Constraint("Vertical", 0),
    Sketcher.Constraint("Horizontal", 1),
    Sketcher.Constraint("Vertical", 3),
    Sketcher.Constraint("Horizontal", 4),
    Sketcher.Constraint("Coincident", 2, 3, -1, 1),
    Sketcher.Constraint("Equal", 5, 6),
    Sketcher.Constraint("Equal", 6, 7),
    Sketcher.Constraint("Equal", 7, 8),
    Sketcher.Constraint("Symmetric", 5, 3, 6, 3, -2),
    Sketcher.Constraint("Symmetric", 7, 3, 8, 3, -2),
    Sketcher.Constraint("Vertical", 5, 3, 7, 3),
    Sketcher.Constraint("Radius", 2, Q("5.5 in")),
    Sketcher.Constraint("Diameter", 5, Q("0.25 in")),
    Sketcher.Constraint("DistanceX", 4, 1, 4, 2, Q("3 in")),
    Sketcher.Constraint("DistanceX", 1, 2, 1, 1, Q("1.5 in")),
    Sketcher.Constraint("DistanceY", 7, 3, 3, 2, Q("1 in")),
    Sketcher.Constraint("DistanceY", 0, 2, 0, 1, Q("2.475 in")),
    Sketcher.Constraint("DistanceX", 5, 3, 6, 3, Q("1.91 in")),
    Sketcher.Constraint("DistanceY", 5, 3, 7, 3, Q("0.75 in")),
])
sketch9.setExpression("Constraints[16]", "Params.sketch9_radius")
sketch9.setExpression("Constraints[17]", "Params.sketch9_diameter")
sketch9.setExpression("Constraints[18]", "Params.sketch9_width")
sketch9.setExpression("Constraints[19]", "Params.sketch9_width2")
sketch9.setExpression("Constraints[21]", "Params.sketch9_height")
pad2 = doc.addObject("PartDesign::Pad", "Pad001")
body.addObject(pad2)
pad2.Profile = sketch9
pad2.setExpression("Length", "Params.pad2_length")
doc.recompute()

fillet3 = doc.addObject("PartDesign::Fillet", "Fillet002")
body.addObject(fillet3)
fillet3.Base = (pad2, edges_at(pad2, [(38.1, 202.565, 1.587), (-38.1, 202.565, 1.587)]))
fillet3.setExpression("Radius", "Params.fillet3_radius")
doc.recompute()

fillet4 = doc.addObject("PartDesign::Fillet", "Fillet003")
body.addObject(fillet4)
fillet4.Base = (fillet3, edges_at(fillet3, [(-38.1, 134.404, 1.587), (38.1, 139.7, 1.587)]))
fillet4.setExpression("Radius", "Params.fillet4_radius")

doc.recompute()
